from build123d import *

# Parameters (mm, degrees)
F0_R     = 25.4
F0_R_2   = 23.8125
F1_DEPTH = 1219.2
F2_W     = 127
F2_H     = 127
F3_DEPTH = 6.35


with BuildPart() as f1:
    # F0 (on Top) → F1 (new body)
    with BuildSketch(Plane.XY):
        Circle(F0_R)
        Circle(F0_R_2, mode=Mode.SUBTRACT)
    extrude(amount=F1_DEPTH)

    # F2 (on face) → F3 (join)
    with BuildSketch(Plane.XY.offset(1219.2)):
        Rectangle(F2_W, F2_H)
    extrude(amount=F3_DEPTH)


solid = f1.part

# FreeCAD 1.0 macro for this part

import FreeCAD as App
import Part
import Sketcher

V = App.Vector
Q = App.Units.Quantity


def add_polygon(sketch, points):
    """Adds a closed chain of lines whose ends are joined by coincident constraints."""
    first, n = sketch.GeometryCount, len(points)
    for a, b in zip(points, points[1:] + points[:1]):
        sketch.addGeometry(Part.LineSegment(App.Vector(*a, 0), App.Vector(*b, 0)), False)
    for i in range(n):
        sketch.addConstraint(Sketcher.Constraint("Coincident", first + i, 2, first + (i + 1) % n, 1))

doc = App.newDocument("Part")
params = doc.addObject("Spreadsheet::Sheet", "Params")
for row, (alias, value) in enumerate([
    ("sketch1_diameter", "2 in"),
    ("sketch1_diameter2", "1.875 in"),
    ("pad1_length", "48 in"),
    ("sketch2_width", "5 in"),
    ("pad2_length", "0.25 in"),
], start=1):
    params.set(f"A{row}", alias)
    params.set(f"B{row}", "=" + value)
    params.setAlias(f"B{row}", alias)

body = doc.addObject("PartDesign::Body", "Body")

sketch1 = doc.addObject("Sketcher::SketchObject", "Sketch")
body.addObject(sketch1)
sketch1.AttachmentSupport = (doc.XY_Plane, [""])
sketch1.MapMode = "FlatFace"
sketch1.addGeometry([
    Part.Circle(V(0, 0, 0), V(0, 0, 1), 25.4),
    Part.Circle(V(0, 0, 0), V(0, 0, 1), 23.8125),
], False)
sketch1.addConstraint([
    Sketcher.Constraint("Coincident", 0, 3, -1, 1),
    Sketcher.Constraint("Coincident", 1, 3, -1, 1),
    Sketcher.Constraint("Diameter", 0, Q("2 in")),
    Sketcher.Constraint("Diameter", 1, Q("1.875 in")),
])
sketch1.setExpression("Constraints[2]", "Params.sketch1_diameter")
sketch1.setExpression("Constraints[3]", "Params.sketch1_diameter2")
pad1 = doc.addObject("PartDesign::Pad", "Pad")
body.addObject(pad1)
pad1.Profile = sketch1
pad1.setExpression("Length", "Params.pad1_length")

sketch2 = doc.addObject("Sketcher::SketchObject", "Sketch001")
body.addObject(sketch2)
sketch2.AttachmentSupport = (doc.XY_Plane, [""])
sketch2.MapMode = "FlatFace"
sketch2.AttachmentOffset = App.Placement(V(0, 0, 48 * 25.4), App.Rotation())
add_polygon(sketch2, [(-63.5, 63.5), (-63.5, -63.5), (63.5, -63.5), (63.5, 63.5)])
sketch2.addConstraint([
    Sketcher.Constraint("Vertical", 0),
    Sketcher.Constraint("Horizontal", 1),
    Sketcher.Constraint("Vertical", 2),
    Sketcher.Constraint("Horizontal", 3),
    Sketcher.Constraint("Symmetric", 0, 2, 2, 2, -1, 1),
    Sketcher.Constraint("Equal", 3, 0),
    Sketcher.Constraint("DistanceX", 1, 1, 1, 2, Q("5 in")),
])
sketch2.setExpression("Constraints[10]", "Params.sketch2_width")
pad2 = doc.addObject("PartDesign::Pad", "Pad001")
body.addObject(pad2)
pad2.Profile = sketch2
pad2.setExpression("Length", "Params.pad2_length")

doc.recompute()
